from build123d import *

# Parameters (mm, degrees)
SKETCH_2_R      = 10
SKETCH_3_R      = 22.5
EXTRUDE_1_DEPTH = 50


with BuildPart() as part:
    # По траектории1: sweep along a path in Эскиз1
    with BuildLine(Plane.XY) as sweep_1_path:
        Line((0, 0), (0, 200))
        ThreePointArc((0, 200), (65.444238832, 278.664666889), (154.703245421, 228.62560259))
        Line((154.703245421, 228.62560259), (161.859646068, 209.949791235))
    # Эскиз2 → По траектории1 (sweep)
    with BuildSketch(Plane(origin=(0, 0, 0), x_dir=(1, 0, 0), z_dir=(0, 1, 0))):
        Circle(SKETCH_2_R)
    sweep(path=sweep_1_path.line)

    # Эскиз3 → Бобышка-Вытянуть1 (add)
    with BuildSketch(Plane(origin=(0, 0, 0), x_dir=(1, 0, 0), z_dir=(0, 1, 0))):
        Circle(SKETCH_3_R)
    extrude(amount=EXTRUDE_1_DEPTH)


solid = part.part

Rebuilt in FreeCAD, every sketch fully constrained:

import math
import FreeCAD as App
import Part
import Sketcher
Q = App.Units.Quantity

doc = App.newDocument("Part")
body = doc.addObject("PartDesign::Body", "Body")

sketch1 = body.newObject("Sketcher::SketchObject", "Sketch")
sketch1.AttachmentSupport = (doc.getObject("XZ_Plane"), [""])
sketch1.MapMode = "FlatFace"
sketch1.addGeometry(Part.Circle(App.Vector(0, 0, 0), App.Vector(0, 0, 1), 10), False)
sketch1.addConstraint(Sketcher.Constraint("Coincident", 0, 3, -1, 1))
sketch1.addConstraint(Sketcher.Constraint("Diameter", 0, Q("20 mm")))

sketch2 = body.newObject("Sketcher::SketchObject", "Sketch001")
sketch2.AttachmentSupport = (doc.getObject("XY_Plane"), [""])
sketch2.MapMode = "FlatFace"
sketch2.addGeometry(Part.LineSegment(App.Vector(0, 0, 0), App.Vector(0, 200, 0)), False)
sketch2.addGeometry(Part.ArcOfCircle(Part.Circle(App.Vector(80, 200, 0), App.Vector(0, 0, 1), 80), math.radians(21), math.radians(180)), False)
sketch2.addGeometry(Part.LineSegment(App.Vector(155, 229, 0), App.Vector(162, 210, 0)), False)
sketch2.addConstraint(Sketcher.Constraint("Tangent", 0, 2, 1, 2))
sketch2.addConstraint(Sketcher.Constraint("Tangent", 1, 1, 2, 1))
sketch2.addConstraint(Sketcher.Constraint("Vertical", 0))
sketch2.addConstraint(Sketcher.Constraint("Coincident", 0, 1, -1, 1))
sketch2.addConstraint(Sketcher.Constraint("Radius", 1, Q("80 mm")))
sketch2.addConstraint(Sketcher.Constraint("DistanceY", 0, 1, 0, 2, Q("200 mm")))
sketch2.addConstraint(Sketcher.Constraint("Distance", 2, Q("20 mm")))
sketch2.addConstraint(Sketcher.Constraint("DistanceX", 1, 1, 2, 2, Q("7.156401 mm")))
doc.recompute()

additivepipe = body.newObject("PartDesign::AdditivePipe", "AdditivePipe")
additivepipe.Profile = sketch1
additivepipe.Spine = (sketch2, ["Edge1", "Edge2", "Edge3"])

sketch3 = body.newObject("Sketcher::SketchObject", "Sketch002")
sketch3.AttachmentSupport = (doc.getObject("XZ_Plane"), [""])
sketch3.MapMode = "FlatFace"
sketch3.addGeometry(Part.Circle(App.Vector(0, 0, 0), App.Vector(0, 0, 1), 22), False)
sketch3.addConstraint(Sketcher.Constraint("Coincident", 0, 3, -1, 1))
sketch3.addConstraint(Sketcher.Constraint("Diameter", 0, Q("45 mm")))
pad1 = body.newObject("PartDesign::Pad", "Pad")
pad1.Profile = sketch3
pad1.Length = 50
pad1.Reversed = True

doc.recompute()
